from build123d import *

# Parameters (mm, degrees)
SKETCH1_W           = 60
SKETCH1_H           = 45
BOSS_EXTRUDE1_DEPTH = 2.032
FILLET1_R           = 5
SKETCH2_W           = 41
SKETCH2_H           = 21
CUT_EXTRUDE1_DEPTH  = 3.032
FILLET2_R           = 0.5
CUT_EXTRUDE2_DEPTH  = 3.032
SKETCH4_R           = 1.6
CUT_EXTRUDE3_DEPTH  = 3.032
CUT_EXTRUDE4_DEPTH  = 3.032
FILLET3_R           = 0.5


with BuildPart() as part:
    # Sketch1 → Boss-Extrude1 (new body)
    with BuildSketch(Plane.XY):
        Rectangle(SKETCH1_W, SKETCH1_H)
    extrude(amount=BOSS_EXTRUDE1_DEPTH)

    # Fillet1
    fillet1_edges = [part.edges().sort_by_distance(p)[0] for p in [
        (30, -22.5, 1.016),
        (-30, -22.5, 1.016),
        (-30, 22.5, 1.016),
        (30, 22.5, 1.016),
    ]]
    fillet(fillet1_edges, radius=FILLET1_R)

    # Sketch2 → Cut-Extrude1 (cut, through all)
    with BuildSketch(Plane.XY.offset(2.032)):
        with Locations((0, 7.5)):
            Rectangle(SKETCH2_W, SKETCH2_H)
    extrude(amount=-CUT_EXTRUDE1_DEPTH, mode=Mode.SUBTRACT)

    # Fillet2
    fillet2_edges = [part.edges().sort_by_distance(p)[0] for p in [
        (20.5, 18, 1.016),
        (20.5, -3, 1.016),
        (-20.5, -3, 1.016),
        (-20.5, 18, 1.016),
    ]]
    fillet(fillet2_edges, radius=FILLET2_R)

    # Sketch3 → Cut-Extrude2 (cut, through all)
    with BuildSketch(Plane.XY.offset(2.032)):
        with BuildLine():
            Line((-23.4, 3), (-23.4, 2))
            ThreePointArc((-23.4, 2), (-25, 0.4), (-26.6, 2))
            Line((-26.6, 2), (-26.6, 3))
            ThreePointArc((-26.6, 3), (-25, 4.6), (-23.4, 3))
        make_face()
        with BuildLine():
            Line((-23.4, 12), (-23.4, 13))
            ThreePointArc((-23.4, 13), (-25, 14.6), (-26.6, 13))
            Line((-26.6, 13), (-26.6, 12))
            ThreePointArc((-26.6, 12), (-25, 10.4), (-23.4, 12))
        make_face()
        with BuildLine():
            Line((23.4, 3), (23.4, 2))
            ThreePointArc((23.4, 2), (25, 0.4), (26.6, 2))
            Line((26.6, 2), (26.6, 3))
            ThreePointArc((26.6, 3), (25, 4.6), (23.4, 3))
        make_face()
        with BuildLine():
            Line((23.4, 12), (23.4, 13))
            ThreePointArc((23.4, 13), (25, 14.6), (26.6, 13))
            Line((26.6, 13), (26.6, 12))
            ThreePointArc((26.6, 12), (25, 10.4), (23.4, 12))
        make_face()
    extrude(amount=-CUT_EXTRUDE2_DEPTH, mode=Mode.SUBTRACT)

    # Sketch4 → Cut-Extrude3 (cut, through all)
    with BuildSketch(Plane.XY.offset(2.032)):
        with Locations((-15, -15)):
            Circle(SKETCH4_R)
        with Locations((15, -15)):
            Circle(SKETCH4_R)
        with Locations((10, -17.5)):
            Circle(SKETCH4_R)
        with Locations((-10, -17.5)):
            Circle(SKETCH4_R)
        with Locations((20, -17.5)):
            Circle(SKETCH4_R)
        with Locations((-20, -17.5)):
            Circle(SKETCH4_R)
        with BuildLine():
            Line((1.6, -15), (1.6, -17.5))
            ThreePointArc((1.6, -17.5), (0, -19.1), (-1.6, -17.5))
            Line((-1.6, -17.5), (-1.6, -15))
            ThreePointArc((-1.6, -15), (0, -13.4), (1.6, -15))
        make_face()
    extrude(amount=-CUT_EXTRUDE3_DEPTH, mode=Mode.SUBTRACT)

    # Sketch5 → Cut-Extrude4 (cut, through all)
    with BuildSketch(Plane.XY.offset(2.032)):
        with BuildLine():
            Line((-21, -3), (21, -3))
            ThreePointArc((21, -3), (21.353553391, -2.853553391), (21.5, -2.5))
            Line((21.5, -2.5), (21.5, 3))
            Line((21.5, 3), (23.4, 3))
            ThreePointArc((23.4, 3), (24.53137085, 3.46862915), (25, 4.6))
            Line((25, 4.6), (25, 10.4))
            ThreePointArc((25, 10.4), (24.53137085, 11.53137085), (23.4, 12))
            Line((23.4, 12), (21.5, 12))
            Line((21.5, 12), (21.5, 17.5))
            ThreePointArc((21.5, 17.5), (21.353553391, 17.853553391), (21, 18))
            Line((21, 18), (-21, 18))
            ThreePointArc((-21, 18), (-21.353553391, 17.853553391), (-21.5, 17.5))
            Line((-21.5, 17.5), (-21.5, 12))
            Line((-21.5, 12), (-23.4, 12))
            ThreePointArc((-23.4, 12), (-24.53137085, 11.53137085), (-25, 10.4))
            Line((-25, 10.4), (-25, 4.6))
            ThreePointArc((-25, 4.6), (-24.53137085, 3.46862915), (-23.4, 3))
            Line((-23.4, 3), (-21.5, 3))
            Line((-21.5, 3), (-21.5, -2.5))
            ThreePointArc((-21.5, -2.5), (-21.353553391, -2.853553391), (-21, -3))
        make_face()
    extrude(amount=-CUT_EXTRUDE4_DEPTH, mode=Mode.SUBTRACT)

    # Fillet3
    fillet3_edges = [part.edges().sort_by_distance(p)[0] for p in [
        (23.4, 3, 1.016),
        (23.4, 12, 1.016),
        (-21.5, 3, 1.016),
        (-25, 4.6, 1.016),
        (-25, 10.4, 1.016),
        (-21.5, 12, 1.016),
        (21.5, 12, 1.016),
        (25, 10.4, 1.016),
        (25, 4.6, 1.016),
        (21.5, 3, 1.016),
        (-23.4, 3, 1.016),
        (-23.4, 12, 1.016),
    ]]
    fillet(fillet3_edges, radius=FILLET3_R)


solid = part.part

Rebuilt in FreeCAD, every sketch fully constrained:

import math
import FreeCAD as App
import Part
import Sketcher
from FreeCAD import Vector


def edges_at(feature, points):
    """Names of the edges that pass closest to the given points."""
    edges = feature.Shape.Edges
    near = lambda p: min(range(len(edges)), key=lambda i: edges[i].distToShape(Part.Vertex(*p))[0])
    return sorted({f"Edge{near(p) + 1}" for p in points})

doc = App.newDocument("Part")
body = doc.addObject("PartDesign::Body", "Body")

# Sketch on XY plane
sketch1 = body.newObject("Sketcher::SketchObject", "Sketch")
sketch1.AttachmentSupport = (doc.getObject("XY_Plane"), [""])
sketch1.MapMode = "FlatFace"
sketch1.addGeometry(Part.LineSegment(Vector(-30, 22, 0), Vector(-30, -22, 0)), False)
sketch1.addGeometry(Part.LineSegment(Vector(-30, -22, 0), Vector(30, -22, 0)), False)
sketch1.addGeometry(Part.LineSegment(Vector(30, -22, 0), Vector(30, 22, 0)), False)
sketch1.addGeometry(Part.LineSegment(Vector(30, 22, 0), Vector(-30, 22, 0)), False)
sketch1.addConstraint(Sketcher.Constraint("Coincident", 0, 2, 1, 1))
sketch1.addConstraint(Sketcher.Constraint("Coincident", 1, 2, 2, 1))
sketch1.addConstraint(Sketcher.Constraint("Coincident", 2, 2, 3, 1))
sketch1.addConstraint(Sketcher.Constraint("Coincident", 3, 2, 0, 1))
sketch1.addConstraint(Sketcher.Constraint("Vertical", 0))
sketch1.addConstraint(Sketcher.Constraint("Horizontal", 1))
sketch1.addConstraint(Sketcher.Constraint("Vertical", 2))
sketch1.addConstraint(Sketcher.Constraint("Horizontal", 3))
sketch1.addConstraint(Sketcher.Constraint("Symmetric", 0, 2, 2, 2, -1, 1))
sketch1.addConstraint(Sketcher.Constraint("DistanceX", 1, 1, 1, 2, 60.0))
sketch1.addConstraint(Sketcher.Constraint("DistanceY", 0, 2, 0, 1, 45.0))
pad1 = body.newObject("PartDesign::Pad", "Pad")
pad1.Profile = sketch1
pad1.Length = 2.032
doc.recompute()

fillet = body.newObject("PartDesign::Fillet", "Fillet")
fillet.Base = (pad1, edges_at(pad1, [
    (30, -22.5, 1.016),
    (-30, -22.5, 1.016),
    (-30, 22.5, 1.016),
    (30, 22.5, 1.016),
]))
fillet.Radius = 5

# Sketch on XY plane
sketch2 = body.newObject("Sketcher::SketchObject", "Sketch001")
sketch2.AttachmentSupport = (doc.getObject("XY_Plane"), [""])
sketch2.MapMode = "FlatFace"
sketch2.AttachmentOffset = App.Placement(Vector(0, 0, 2.032), App.Rotation())
sketch2.addGeometry(Part.LineSegment(Vector(-20, 18, 0), Vector(-20, -3, 0)), False)
sketch2.addGeometry(Part.LineSegment(Vector(-20, -3, 0), Vector(20, -3, 0)), False)
sketch2.addGeometry(Part.LineSegment(Vector(20, -3, 0), Vector(20, 18, 0)), False)
sketch2.addGeometry(Part.LineSegment(Vector(20, 18, 0), Vector(-20, 18, 0)), False)
sketch2.addConstraint(Sketcher.Constraint("Coincident", 0, 2, 1, 1))
sketch2.addConstraint(Sketcher.Constraint("Coincident", 1, 2, 2, 1))
sketch2.addConstraint(Sketcher.Constraint("Coincident", 2, 2, 3, 1))
sketch2.addConstraint(Sketcher.Constraint("Coincident", 3, 2, 0, 1))
sketch2.addConstraint(Sketcher.Constraint("Vertical", 0))
sketch2.addConstraint(Sketcher.Constraint("Horizontal", 1))
sketch2.addConstraint(Sketcher.Constraint("Vertical", 2))
sketch2.addConstraint(Sketcher.Constraint("Horizontal", 3))
sketch2.addConstraint(Sketcher.Constraint("DistanceX", 1, 1, 1, 2, 41.0))
sketch2.addConstraint(Sketcher.Constraint("DistanceY", 0, 2, 0, 1, 21.0))
sketch2.addConstraint(Sketcher.Constraint("DistanceY", 0, 2, -1, 1, 3.0))
sketch2.addConstraint(Sketcher.Constraint("DistanceX", 0, 2, -1, 1, 20.5))
pocket1 = body.newObject("PartDesign::Pocket", "Pocket")
pocket1.Profile = sketch2
pocket1.Type = "ThroughAll"
doc.recompute()

fillet2 = body.newObject("PartDesign::Fillet", "Fillet001")
fillet2.Base = (pocket1, edges_at(pocket1, [
    (20.5, 18, 1.016),
    (20.5, -3, 1.016),
    (-20.5, -3, 1.016),
    (-20.5, 18, 1.016),
]))
fillet2.Radius = 0.5

# Sketch on XY plane
sketch3 = body.newObject("Sketcher::SketchObject", "Sketch002")
sketch3.AttachmentSupport = (doc.getObject("XY_Plane"), [""])
sketch3.MapMode = "FlatFace"
sketch3.AttachmentOffset = App.Placement(Vector(0, 0, 2.032), App.Rotation())
sketch3.addGeometry(Part.LineSegment(Vector(-23.4, 2, 0), Vector(-23.4, 3, 0)), False)
sketch3.addGeometry(Part.ArcOfCircle(Part.Circle(Vector(-25, 3, 0), Vector(0, 0, 1), 1.6), math.radians(0), math.radians(180)), False)
sketch3.addGeometry(Part.LineSegment(Vector(-26.6, 3, 0), Vector(-26.6, 2, 0)), False)
sketch3.addGeometry(Part.ArcOfCircle(Part.Circle(Vector(-25, 2, 0), Vector(0, 0, 1), 1.6), math.radians(180), math.radians(360)), False)
sketch3.addGeometry(Part.LineSegment(Vector(-23.4, 12, 0), Vector(-23.4, 13, 0)), False)
sketch3.addGeometry(Part.ArcOfCircle(Part.Circle(Vector(-25, 13, 0), Vector(0, 0, 1), 1.6), math.radians(0), math.radians(180)), False)
sketch3.addGeometry(Part.LineSegment(Vector(-26.6, 13, 0), Vector(-26.6, 12, 0)), False)
sketch3.addGeometry(Part.ArcOfCircle(Part.Circle(Vector(-25, 12, 0), Vector(0, 0, 1), 1.6), math.radians(180), math.radians(360)), False)
sketch3.addGeometry(Part.LineSegment(Vector(23.4, 3, 0), Vector(23.4, 2, 0)), False)
sketch3.addGeometry(Part.ArcOfCircle(Part.Circle(Vector(25, 2, 0), Vector(0, 0, 1), 1.6), math.radians(180), math.radians(360)), False)
sketch3.addGeometry(Part.LineSegment(Vector(26.6, 2, 0), Vector(26.6, 3, 0)), False)
sketch3.addGeometry(Part.ArcOfCircle(Part.Circle(Vector(25, 3, 0), Vector(0, 0, 1), 1.6), math.radians(0), math.radians(180)), False)
sketch3.addGeometry(Part.LineSegment(Vector(23.4, 13, 0), Vector(23.4, 12, 0)), False)
sketch3.addGeometry(Part.ArcOfCircle(Part.Circle(Vector(25, 12, 0), Vector(0, 0, 1), 1.6), math.radians(180), math.radians(360)), False)
sketch3.addGeometry(Part.LineSegment(Vector(26.6, 12, 0), Vector(26.6, 13, 0)), False)
sketch3.addGeometry(Part.ArcOfCircle(Part.Circle(Vector(25, 13, 0), Vector(0, 0, 1), 1.6), math.radians(0), math.radians(180)), False)
sketch3.addConstraint(Sketcher.Constraint("Tangent", 0, 2, 1, 1))
sketch3.addConstraint(Sketcher.Constraint("Tangent", 1, 2, 2, 1))
sketch3.addConstraint(Sketcher.Constraint("Tangent", 2, 2, 3, 1))
sketch3.addConstraint(Sketcher.Constraint("Tangent", 3, 2, 0, 1))
sketch3.addConstraint(Sketcher.Constraint("Tangent", 4, 2, 5, 1))
sketch3.addConstraint(Sketcher.Constraint("Tangent", 5, 2, 6, 1))
sketch3.addConstraint(Sketcher.Constraint("Tangent", 6, 2, 7, 1))
sketch3.addConstraint(Sketcher.Constraint("Tangent", 7, 2, 4, 1))
sketch3.addConstraint(Sketcher.Constraint("Tangent", 8, 2, 9, 1))
sketch3.addConstraint(Sketcher.Constraint("Tangent", 9, 2, 10, 1))
sketch3.addConstraint(Sketcher.Constraint("Tangent", 10, 2, 11, 1))
sketch3.addConstraint(Sketcher.Constraint("Tangent", 11, 2, 8, 1))
sketch3.addConstraint(Sketcher.Constraint("Tangent", 12, 2, 13, 1))
sketch3.addConstraint(Sketcher.Constraint("Tangent", 13, 2, 14, 1))
sketch3.addConstraint(Sketcher.Constraint("Tangent", 14, 2, 15, 1))
sketch3.addConstraint(Sketcher.Constraint("Tangent", 15, 2, 12, 1))
sketch3.addConstraint(Sketcher.Constraint("Vertical", 0))
sketch3.addConstraint(Sketcher.Constraint("Vertical", 2))
sketch3.addConstraint(Sketcher.Constraint("Vertical", 4))
sketch3.addConstraint(Sketcher.Constraint("Vertical", 6))
sketch3.addConstraint(Sketcher.Constraint("Vertical", 8))
sketch3.addConstraint(Sketcher.Constraint("Vertical", 10))
sketch3.addConstraint(Sketcher.Constraint("Vertical", 12))
sketch3.addConstraint(Sketcher.Constraint("Vertical", 14))
sketch3.addConstraint(Sketcher.Constraint("Equal", 3, 5))
sketch3.addConstraint(Sketcher.Constraint("Equal", 7, 9))
sketch3.addConstraint(Sketcher.Constraint("Equal", 11, 13))
sketch3.addConstraint(Sketcher.Constraint("Symmetric", 3, 3, 9, 3, -2))
sketch3.addConstraint(Sketcher.Constraint("Symmetric", 7, 3, 13, 3, -2))
sketch3.addConstraint(Sketcher.Constraint("Horizontal", 1, 3, 11, 3))
sketch3.addConstraint(Sketcher.Constraint("Horizontal", 5, 3, 15, 3))
sketch3.addConstraint(Sketcher.Constraint("Vertical", 3, 3, 5, 3))
sketch3.addConstraint(Sketcher.Constraint("Equal", 2, 4))
sketch3.addConstraint(Sketcher.Constraint("Radius", 1, 1.6))
sketch3.addConstraint(Sketcher.Constraint("DistanceY", 0, 1, 0, 2, 1.0))
sketch3.addConstraint(Sketcher.Constraint("DistanceX", 1, 3, -1, 1, 25.0))
sketch3.addConstraint(Sketcher.Constraint("DistanceY", -1, 1, 1, 3, 3.0))
sketch3.addConstraint(Sketcher.Constraint("DistanceY", -1, 1, 5, 3, 13.0))
pocket2 = body.newObject("PartDesign::Pocket", "Pocket001")
pocket2.Profile = sketch3
pocket2.Type = "ThroughAll"

# Sketch on XY plane
sketch4 = body.newObject("Sketcher::SketchObject", "Sketch003")
sketch4.AttachmentSupport = (doc.getObject("XY_Plane"), [""])
sketch4.MapMode = "FlatFace"
sketch4.AttachmentOffset = App.Placement(Vector(0, 0, 2.032), App.Rotation())
sketch4.addGeometry(Part.Circle(Vector(-15, -15, 0), Vector(0, 0, 1), 1.6), False)
sketch4.addGeometry(Part.Circle(Vector(15, -15, 0), Vector(0, 0, 1), 1.6), False)
sketch4.addGeometry(Part.Circle(Vector(10, -17.5, 0), Vector(0, 0, 1), 1.6), False)
sketch4.addGeometry(Part.Circle(Vector(-10, -17.5, 0), Vector(0, 0, 1), 1.6), False)
sketch4.addGeometry(Part.Circle(Vector(20, -17.5, 0), Vector(0, 0, 1), 1.6), False)
sketch4.addGeometry(Part.Circle(Vector(-20, -17.5, 0), Vector(0, 0, 1), 1.6), False)
sketch4.addGeometry(Part.LineSegment(Vector(1.6, -17.5, 0), Vector(1.6, -15, 0)), False)
sketch4.addGeometry(Part.ArcOfCircle(Part.Circle(Vector(0, -15, 0), Vector(0, 0, 1), 1.6), math.radians(0), math.radians(180)), False)
sketch4.addGeometry(Part.LineSegment(Vector(-1.6, -15, 0), Vector(-1.6, -17.5, 0)), False)
sketch4.addGeometry(Part.ArcOfCircle(Part.Circle(Vector(0, -17.5, 0), Vector(0, 0, 1), 1.6), math.radians(180), math.radians(360)), False)
sketch4.addConstraint(Sketcher.Constraint("Tangent", 6, 2, 7, 1))
sketch4.addConstraint(Sketcher.Constraint("Tangent", 7, 2, 8, 1))
sketch4.addConstraint(Sketcher.Constraint("Tangent", 8, 2, 9, 1))
sketch4.addConstraint(Sketcher.Constraint("Tangent", 9, 2, 6, 1))
sketch4.addConstraint(Sketcher.Constraint("Vertical", 6))
sketch4.addConstraint(Sketcher.Constraint("Vertical", 8))
sketch4.addConstraint(Sketcher.Constraint("Equal", 0, 1))
sketch4.addConstraint(Sketcher.Constraint("Equal", 1, 2))
sketch4.addConstraint(Sketcher.Constraint("Equal", 2, 3))
sketch4.addConstraint(Sketcher.Constraint("Equal", 3, 4))
sketch4.addConstraint(Sketcher.Constraint("Equal", 4, 5))
sketch4.addConstraint(Sketcher.Constraint("Equal", 5, 7))
sketch4.addConstraint(Sketcher.Constraint("Symmetric", 0, 3, 1, 3, -2))
sketch4.addConstraint(Sketcher.Constraint("Symmetric", 2, 3, 3, 3, -2))
sketch4.addConstraint(Sketcher.Constraint("Symmetric", 4, 3, 5, 3, -2))
sketch4.addConstraint(Sketcher.Constraint("PointOnObject", 7, 3, -2))
sketch4.addConstraint(Sketcher.Constraint("Horizontal", 3, 3, 4, 3))
sketch4.addConstraint(Sketcher.Constraint("Horizontal", 1, 3, 7, 3))
sketch4.addConstraint(Sketcher.Constraint("Horizontal", 5, 3, 9, 3))
sketch4.addConstraint(Sketcher.Constraint("Diameter", 0, 3.2))
sketch4.addConstraint(Sketcher.Constraint("DistanceY", 6, 1, 6, 2, 2.5))
sketch4.addConstraint(Sketcher.Constraint("DistanceX", 0, 3, -1, 1, 15.0))
sketch4.addConstraint(Sketcher.Constraint("DistanceY", 0, 3, -1, 1, 15.0))
sketch4.addConstraint(Sketcher.Constraint("DistanceX", -1, 1, 2, 3, 10.0))
sketch4.addConstraint(Sketcher.Constraint("DistanceX", -1, 1, 4, 3, 20.0))
pocket3 = body.newObject("PartDesign::Pocket", "Pocket002")
pocket3.Profile = sketch4
pocket3.Type = "ThroughAll"

# Sketch on XY plane
sketch5 = body.newObject("Sketcher::SketchObject", "Sketch004")
sketch5.AttachmentSupport = (doc.getObject("XY_Plane"), [""])
sketch5.MapMode = "FlatFace"
sketch5.AttachmentOffset = App.Placement(Vector(0, 0, 2.032), App.Rotation())
sketch5.addGeometry(Part.LineSegment(Vector(-21, -3, 0), Vector(21, -3, 0)), False)
sketch5.addGeometry(Part.ArcOfCircle(Part.Circle(Vector(21, -2.5, 0), Vector(0, 0, 1), 0.5), math.radians(-90), math.radians(0)), False)
sketch5.addGeometry(Part.LineSegment(Vector(21.5, -2.5, 0), Vector(21.5, 3, 0)), False)
sketch5.addGeometry(Part.LineSegment(Vector(21.5, 3, 0), Vector(23.4, 3, 0)), False)
sketch5.addGeometry(Part.ArcOfCircle(Part.Circle(Vector(23.4, 4.6, 0), Vector(0, 0, 1), 1.6), math.radians(-90), math.radians(0)), False)
sketch5.addGeometry(Part.LineSegment(Vector(25, 4.6, 0), Vector(25, 10.4, 0)), False)
sketch5.addGeometry(Part.ArcOfCircle(Part.Circle(Vector(23.4, 10.4, 0), Vector(0, 0, 1), 1.6), math.radians(0), math.radians(90)), False)
sketch5.addGeometry(Part.LineSegment(Vector(23.4, 12, 0), Vector(21.5, 12, 0)), False)
sketch5.addGeometry(Part.LineSegment(Vector(21.5, 12, 0), Vector(21.5, 17.5, 0)), False)
sketch5.addGeometry(Part.ArcOfCircle(Part.Circle(Vector(21, 17.5, 0), Vector(0, 0, 1), 0.5), math.radians(0), math.radians(90)), False)
sketch5.addGeometry(Part.LineSegment(Vector(21, 18, 0), Vector(-21, 18, 0)), False)
sketch5.addGeometry(Part.ArcOfCircle(Part.Circle(Vector(-21, 17.5, 0), Vector(0, 0, 1), 0.5), math.radians(90), math.radians(180)), False)
sketch5.addGeometry(Part.LineSegment(Vector(-21.5, 17.5, 0), Vector(-21.5, 12, 0)), False)
sketch5.addGeometry(Part.LineSegment(Vector(-21.5, 12, 0), Vector(-23.4, 12, 0)), False)
sketch5.addGeometry(Part.ArcOfCircle(Part.Circle(Vector(-23.4, 10.4, 0), Vector(0, 0, 1), 1.6), math.radians(90), math.radians(180)), False)
sketch5.addGeometry(Part.LineSegment(Vector(-25, 10.4, 0), Vector(-25, 4.6, 0)), False)
sketch5.addGeometry(Part.ArcOfCircle(Part.Circle(Vector(-23.4, 4.6, 0), Vector(0, 0, 1), 1.6), math.radians(180), math.radians(270)), False)
sketch5.addGeometry(Part.LineSegment(Vector(-23.4, 3, 0), Vector(-21.5, 3, 0)), False)
sketch5.addGeometry(Part.LineSegment(Vector(-21.5, 3, 0), Vector(-21.5, -2.5, 0)), False)
sketch5.addGeometry(Part.ArcOfCircle(Part.Circle(Vector(-21, -2.5, 0), Vector(0, 0, 1), 0.5), math.radians(180), math.radians(270)), False)
sketch5.addConstraint(Sketcher.Constraint("Tangent", 0, 2, 1, 1))
sketch5.addConstraint(Sketcher.Constraint("Tangent", 1, 2, 2, 1))
sketch5.addConstraint(Sketcher.Constraint("Coincident", 2, 2, 3, 1))
sketch5.addConstraint(Sketcher.Constraint("Tangent", 3, 2, 4, 1))
sketch5.addConstraint(Sketcher.Constraint("Tangent", 4, 2, 5, 1))
sketch5.addConstraint(Sketcher.Constraint("Tangent", 5, 2, 6, 1))
sketch5.addConstraint(Sketcher.Constraint("Tangent", 6, 2, 7, 1))
sketch5.addConstraint(Sketcher.Constraint("Coincident", 7, 2, 8, 1))
sketch5.addConstraint(Sketcher.Constraint("Tangent", 8, 2, 9, 1))
sketch5.addConstraint(Sketcher.Constraint("Tangent", 9, 2, 10, 1))
sketch5.addConstraint(Sketcher.Constraint("Tangent", 10, 2, 11, 1))
sketch5.addConstraint(Sketcher.Constraint("Tangent", 11, 2, 12, 1))
sketch5.addConstraint(Sketcher.Constraint("Coincident", 12, 2, 13, 1))
sketch5.addConstraint(Sketcher.Constraint("Tangent", 13, 2, 14, 1))
sketch5.addConstraint(Sketcher.Constraint("Tangent", 14, 2, 15, 1))
sketch5.addConstraint(Sketcher.Constraint("Tangent", 15, 2, 16, 1))
sketch5.addConstraint(Sketcher.Constraint("Tangent", 16, 2, 17, 1))
sketch5.addConstraint(Sketcher.Constraint("Coincident", 17, 2, 18, 1))
sketch5.addConstraint(Sketcher.Constraint("Tangent", 18, 2, 19, 1))
sketch5.addConstraint(Sketcher.Constraint("Tangent", 19, 2, 0, 1))
sketch5.addConstraint(Sketcher.Constraint("Horizontal", 0))
sketch5.addConstraint(Sketcher.Constraint("Vertical", 2))
sketch5.addConstraint(Sketcher.Constraint("Horizontal", 3))
sketch5.addConstraint(Sketcher.Constraint("Vertical", 5))
sketch5.addConstraint(Sketcher.Constraint("Horizontal", 7))
sketch5.addConstraint(Sketcher.Constraint("Vertical", 8))
sketch5.addConstraint(Sketcher.Constraint("Horizontal", 10))
sketch5.addConstraint(Sketcher.Constraint("Vertical", 12))
sketch5.addConstraint(Sketcher.Constraint("Horizontal", 13))
sketch5.addConstraint(Sketcher.Constraint("Vertical", 15))
sketch5.addConstraint(Sketcher.Constraint("Horizontal", 17))
sketch5.addConstraint(Sketcher.Constraint("Vertical", 18))
sketch5.addConstraint(Sketcher.Constraint("Equal", 4, 6))
sketch5.addConstraint(Sketcher.Constraint("Equal", 1, 9))
sketch5.addConstraint(Sketcher.Constraint("Equal", 9, 11))
sketch5.addConstraint(Sketcher.Constraint("Equal", 6, 14))
sketch5.addConstraint(Sketcher.Constraint("Equal", 14, 16))
sketch5.addConstraint(Sketcher.Constraint("Equal", 11, 19))
sketch5.addConstraint(Sketcher.Constraint("Symmetric", 6, 3, 14, 3, -2))
sketch5.addConstraint(Sketcher.Constraint("Symmetric", 2, 2, 17, 2, -2))
sketch5.addConstraint(Sketcher.Constraint("Vertical", 1, 3, 9, 3))
sketch5.addConstraint(Sketcher.Constraint("Vertical", 11, 3, 19, 3))
sketch5.addConstraint(Sketcher.Constraint("Equal", 2, 8))
sketch5.addConstraint(Sketcher.Constraint("Radius", 1, 0.5))
sketch5.addConstraint(Sketcher.Constraint("Radius", 4, 1.6))
sketch5.addConstraint(Sketcher.Constraint("DistanceX", 0, 1, 0, 2, 42.0))
sketch5.addConstraint(Sketcher.Constraint("DistanceX", 3, 1, 3, 2, 1.9))
sketch5.addConstraint(Sketcher.Constraint("DistanceY", 2, 1, 2, 2, 5.5))
sketch5.addConstraint(Sketcher.Constraint("DistanceY", 5, 1, 5, 2, 5.8))
sketch5.addConstraint(Sketcher.Constraint("DistanceY", 0, 2, -1, 1, 3.0))
pocket4 = body.newObject("PartDesign::Pocket", "Pocket003")
pocket4.Profile = sketch5
pocket4.Type = "ThroughAll"
doc.recompute()

fillet3 = body.newObject("PartDesign::Fillet", "Fillet002")
fillet3.Base = (pocket4, edges_at(pocket4, [
    (23.4, 3, 1.016),
    (23.4, 12, 1.016),
    (-21.5, 3, 1.016),
    (-25, 4.6, 1.016),
    (-25, 10.4, 1.016),
    (-21.5, 12, 1.016),
    (21.5, 12, 1.016),
    (25, 10.4, 1.016),
    (25, 4.6, 1.016),
    (21.5, 3, 1.016),
    (-23.4, 3, 1.016),
    (-23.4, 12, 1.016),
]))
fillet3.Radius = 0.5

doc.recompute()
